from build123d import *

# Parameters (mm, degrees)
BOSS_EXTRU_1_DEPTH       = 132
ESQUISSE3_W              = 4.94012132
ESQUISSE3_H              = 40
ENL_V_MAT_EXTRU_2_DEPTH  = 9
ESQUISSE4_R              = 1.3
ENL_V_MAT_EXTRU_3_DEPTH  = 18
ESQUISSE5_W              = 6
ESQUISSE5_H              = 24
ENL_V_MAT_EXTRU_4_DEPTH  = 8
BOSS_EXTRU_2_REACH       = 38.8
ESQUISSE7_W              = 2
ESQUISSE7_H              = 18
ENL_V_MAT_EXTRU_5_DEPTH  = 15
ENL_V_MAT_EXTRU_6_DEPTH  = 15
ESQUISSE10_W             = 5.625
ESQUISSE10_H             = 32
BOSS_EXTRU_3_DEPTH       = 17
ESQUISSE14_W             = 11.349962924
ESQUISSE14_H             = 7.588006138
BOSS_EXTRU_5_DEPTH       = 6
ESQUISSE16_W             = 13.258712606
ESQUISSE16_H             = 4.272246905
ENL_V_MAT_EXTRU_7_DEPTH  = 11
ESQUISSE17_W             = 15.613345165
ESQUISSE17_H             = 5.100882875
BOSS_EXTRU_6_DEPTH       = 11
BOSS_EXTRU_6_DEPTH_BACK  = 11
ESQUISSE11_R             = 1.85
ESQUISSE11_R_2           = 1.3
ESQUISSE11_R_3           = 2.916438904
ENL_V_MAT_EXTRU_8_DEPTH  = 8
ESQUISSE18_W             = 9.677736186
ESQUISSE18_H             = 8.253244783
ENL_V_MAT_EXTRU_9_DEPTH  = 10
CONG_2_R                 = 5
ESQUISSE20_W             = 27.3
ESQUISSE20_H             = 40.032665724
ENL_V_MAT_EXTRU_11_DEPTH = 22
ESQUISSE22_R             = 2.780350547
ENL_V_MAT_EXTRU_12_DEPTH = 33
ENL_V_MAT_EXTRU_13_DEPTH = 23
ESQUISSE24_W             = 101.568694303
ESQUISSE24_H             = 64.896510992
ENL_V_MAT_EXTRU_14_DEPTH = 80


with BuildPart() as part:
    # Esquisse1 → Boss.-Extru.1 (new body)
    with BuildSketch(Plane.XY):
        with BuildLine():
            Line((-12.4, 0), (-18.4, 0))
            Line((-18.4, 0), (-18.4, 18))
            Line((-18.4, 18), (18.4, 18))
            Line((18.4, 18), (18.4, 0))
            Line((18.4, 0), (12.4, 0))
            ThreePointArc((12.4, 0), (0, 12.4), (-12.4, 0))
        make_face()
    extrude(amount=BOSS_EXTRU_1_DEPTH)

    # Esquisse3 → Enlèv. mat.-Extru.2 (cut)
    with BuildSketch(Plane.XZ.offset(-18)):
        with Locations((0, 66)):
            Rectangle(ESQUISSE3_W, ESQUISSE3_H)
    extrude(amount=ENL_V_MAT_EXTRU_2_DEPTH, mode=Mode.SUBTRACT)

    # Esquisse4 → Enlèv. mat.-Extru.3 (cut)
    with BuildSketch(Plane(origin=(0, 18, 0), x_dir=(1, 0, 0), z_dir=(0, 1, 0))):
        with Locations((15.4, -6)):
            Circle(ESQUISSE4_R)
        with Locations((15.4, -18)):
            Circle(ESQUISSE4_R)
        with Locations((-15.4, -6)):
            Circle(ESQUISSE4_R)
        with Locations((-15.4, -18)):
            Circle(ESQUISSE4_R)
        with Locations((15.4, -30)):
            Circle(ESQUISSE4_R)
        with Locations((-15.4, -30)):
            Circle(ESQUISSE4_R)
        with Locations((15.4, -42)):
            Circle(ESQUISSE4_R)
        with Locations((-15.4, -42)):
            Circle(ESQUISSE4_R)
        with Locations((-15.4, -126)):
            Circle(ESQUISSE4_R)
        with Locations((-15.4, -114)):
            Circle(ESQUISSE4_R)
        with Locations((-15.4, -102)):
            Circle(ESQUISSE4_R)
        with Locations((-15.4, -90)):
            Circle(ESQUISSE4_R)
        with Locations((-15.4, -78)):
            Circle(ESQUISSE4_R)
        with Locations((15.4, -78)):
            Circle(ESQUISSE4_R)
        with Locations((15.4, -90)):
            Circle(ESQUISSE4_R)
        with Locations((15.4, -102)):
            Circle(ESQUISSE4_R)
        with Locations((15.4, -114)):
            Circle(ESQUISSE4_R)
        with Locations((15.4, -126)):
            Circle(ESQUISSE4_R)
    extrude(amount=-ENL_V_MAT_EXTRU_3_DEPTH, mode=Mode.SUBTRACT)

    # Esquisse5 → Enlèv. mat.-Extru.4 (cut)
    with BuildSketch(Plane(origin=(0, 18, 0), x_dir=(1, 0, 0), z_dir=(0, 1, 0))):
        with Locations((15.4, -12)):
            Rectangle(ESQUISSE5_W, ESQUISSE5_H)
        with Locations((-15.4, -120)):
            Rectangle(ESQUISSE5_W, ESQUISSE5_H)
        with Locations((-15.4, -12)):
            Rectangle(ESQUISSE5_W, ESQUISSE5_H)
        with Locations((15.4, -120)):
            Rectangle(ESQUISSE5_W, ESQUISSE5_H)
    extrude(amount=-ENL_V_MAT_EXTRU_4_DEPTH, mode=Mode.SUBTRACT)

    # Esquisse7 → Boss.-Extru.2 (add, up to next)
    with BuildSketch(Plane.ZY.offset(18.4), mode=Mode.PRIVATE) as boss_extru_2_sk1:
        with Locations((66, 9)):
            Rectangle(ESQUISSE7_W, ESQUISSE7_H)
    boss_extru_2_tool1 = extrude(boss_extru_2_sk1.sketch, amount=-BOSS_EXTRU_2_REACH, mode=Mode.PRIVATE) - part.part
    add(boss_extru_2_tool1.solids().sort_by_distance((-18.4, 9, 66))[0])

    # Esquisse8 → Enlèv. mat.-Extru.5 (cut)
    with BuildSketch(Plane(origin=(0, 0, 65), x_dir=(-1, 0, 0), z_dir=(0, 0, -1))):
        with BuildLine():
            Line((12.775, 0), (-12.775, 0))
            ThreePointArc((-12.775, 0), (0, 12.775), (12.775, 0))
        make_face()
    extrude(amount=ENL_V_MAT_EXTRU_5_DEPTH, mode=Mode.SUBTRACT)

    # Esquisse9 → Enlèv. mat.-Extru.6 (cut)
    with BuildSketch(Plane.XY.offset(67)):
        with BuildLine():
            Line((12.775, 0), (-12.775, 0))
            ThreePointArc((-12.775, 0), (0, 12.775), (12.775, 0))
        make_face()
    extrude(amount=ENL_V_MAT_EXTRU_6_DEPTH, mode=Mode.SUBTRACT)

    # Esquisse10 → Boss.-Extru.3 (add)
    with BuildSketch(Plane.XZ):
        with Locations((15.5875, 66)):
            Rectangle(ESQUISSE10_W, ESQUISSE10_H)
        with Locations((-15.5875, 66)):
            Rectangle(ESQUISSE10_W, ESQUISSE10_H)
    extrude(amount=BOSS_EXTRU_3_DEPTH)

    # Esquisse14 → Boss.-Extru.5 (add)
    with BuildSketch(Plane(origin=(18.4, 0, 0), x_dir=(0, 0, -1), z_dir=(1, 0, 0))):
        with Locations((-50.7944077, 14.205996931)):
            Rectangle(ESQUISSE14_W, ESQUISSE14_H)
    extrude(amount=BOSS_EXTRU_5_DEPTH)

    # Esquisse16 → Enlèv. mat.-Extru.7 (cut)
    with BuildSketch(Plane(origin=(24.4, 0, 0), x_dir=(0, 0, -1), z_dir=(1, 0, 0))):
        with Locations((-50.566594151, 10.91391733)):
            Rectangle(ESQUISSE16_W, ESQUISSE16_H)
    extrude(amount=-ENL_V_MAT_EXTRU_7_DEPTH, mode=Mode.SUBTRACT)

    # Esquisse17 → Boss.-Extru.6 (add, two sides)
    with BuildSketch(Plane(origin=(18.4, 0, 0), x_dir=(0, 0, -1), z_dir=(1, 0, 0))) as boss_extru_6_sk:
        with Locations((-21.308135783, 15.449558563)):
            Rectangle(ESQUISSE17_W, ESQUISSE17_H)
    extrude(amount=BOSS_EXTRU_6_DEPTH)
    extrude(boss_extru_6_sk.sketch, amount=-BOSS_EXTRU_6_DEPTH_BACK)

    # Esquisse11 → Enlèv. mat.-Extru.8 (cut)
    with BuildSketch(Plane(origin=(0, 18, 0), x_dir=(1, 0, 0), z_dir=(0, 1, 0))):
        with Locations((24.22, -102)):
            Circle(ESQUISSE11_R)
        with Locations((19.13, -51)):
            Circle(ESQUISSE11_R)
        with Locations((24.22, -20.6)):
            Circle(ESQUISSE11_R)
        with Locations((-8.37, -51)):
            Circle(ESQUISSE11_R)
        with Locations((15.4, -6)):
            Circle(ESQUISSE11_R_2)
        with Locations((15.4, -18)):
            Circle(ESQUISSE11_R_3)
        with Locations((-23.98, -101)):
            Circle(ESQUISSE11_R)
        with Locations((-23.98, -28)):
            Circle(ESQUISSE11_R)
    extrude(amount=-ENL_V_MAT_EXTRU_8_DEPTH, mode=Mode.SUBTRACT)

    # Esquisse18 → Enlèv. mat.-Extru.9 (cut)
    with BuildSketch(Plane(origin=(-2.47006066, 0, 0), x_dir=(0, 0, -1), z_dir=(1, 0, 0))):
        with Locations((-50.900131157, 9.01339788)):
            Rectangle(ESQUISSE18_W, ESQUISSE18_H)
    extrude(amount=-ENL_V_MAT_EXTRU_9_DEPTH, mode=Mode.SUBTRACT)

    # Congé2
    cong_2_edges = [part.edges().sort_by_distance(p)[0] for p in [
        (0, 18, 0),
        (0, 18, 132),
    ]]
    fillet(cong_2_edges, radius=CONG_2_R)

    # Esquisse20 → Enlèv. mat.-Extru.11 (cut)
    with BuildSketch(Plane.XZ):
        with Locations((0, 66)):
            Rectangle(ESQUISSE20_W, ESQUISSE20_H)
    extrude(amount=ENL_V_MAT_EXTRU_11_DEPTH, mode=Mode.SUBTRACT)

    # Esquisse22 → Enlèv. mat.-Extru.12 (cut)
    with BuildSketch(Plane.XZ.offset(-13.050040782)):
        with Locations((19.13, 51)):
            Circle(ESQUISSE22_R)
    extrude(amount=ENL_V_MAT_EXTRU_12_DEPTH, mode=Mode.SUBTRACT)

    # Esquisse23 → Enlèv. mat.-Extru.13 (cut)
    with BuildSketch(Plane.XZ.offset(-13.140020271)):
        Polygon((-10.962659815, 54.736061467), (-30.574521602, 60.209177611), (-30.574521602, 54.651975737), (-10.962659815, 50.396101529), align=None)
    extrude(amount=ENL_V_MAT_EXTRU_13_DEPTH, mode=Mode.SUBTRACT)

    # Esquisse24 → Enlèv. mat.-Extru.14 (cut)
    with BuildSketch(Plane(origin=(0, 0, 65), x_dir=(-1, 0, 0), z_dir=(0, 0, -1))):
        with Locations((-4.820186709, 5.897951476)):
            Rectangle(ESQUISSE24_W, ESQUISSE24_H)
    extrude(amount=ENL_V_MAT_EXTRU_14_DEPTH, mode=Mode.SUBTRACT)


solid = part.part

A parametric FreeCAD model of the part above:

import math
import FreeCAD as App
import Part
import Sketcher

V = App.Vector


def edges_at(feature, points):
    """Names of the edges that pass closest to the given points."""
    edges = feature.Shape.Edges
    near = lambda p: min(range(len(edges)), key=lambda i: edges[i].distToShape(Part.Vertex(*p))[0])
    return sorted({f"Edge{near(p) + 1}" for p in points})


def add_polygon(sketch, points):
    """Adds a closed chain of lines whose ends are joined by coincident constraints."""
    first, n = sketch.GeometryCount, len(points)
    for a, b in zip(points, points[1:] + points[:1]):
        sketch.addGeometry(Part.LineSegment(App.Vector(*a, 0), App.Vector(*b, 0)), False)
    for i in range(n):
        sketch.addConstraint(Sketcher.Constraint("Coincident", first + i, 2, first + (i + 1) % n, 1))

doc = App.newDocument("Part")
body = doc.addObject("PartDesign::Body", "Body")

# Sketch on XY plane
sketch1 = doc.addObject("Sketcher::SketchObject", "Sketch")
body.addObject(sketch1)
sketch1.AttachmentSupport = (doc.XY_Plane, [""])
sketch1.MapMode = "FlatFace"
sketch1.addGeometry(Part.LineSegment(V(-18.4, 0, 0), V(-12.4, 0, 0)), False)
sketch1.addGeometry(Part.ArcOfCircle(Part.Circle(V(0, 0, 0), V(0, 0, 1), 12.4), math.radians(0), math.radians(180)), False)
sketch1.addGeometry(Part.LineSegment(V(12.4, 0, 0), V(18.4, 0, 0)), False)
sketch1.addGeometry(Part.LineSegment(V(18.4, 0, 0), V(18.4, 18, 0)), False)
sketch1.addGeometry(Part.LineSegment(V(18.4, 18, 0), V(-18.4, 18, 0)), False)
sketch1.addGeometry(Part.LineSegment(V(-18.4, 18, 0), V(-18.4, 0, 0)), False)
sketch1.addConstraint(Sketcher.Constraint("Coincident", 0, 2, 1, 2))
sketch1.addConstraint(Sketcher.Constraint("Coincident", 1, 1, 2, 1))
sketch1.addConstraint(Sketcher.Constraint("Coincident", 2, 2, 3, 1))
sketch1.addConstraint(Sketcher.Constraint("Coincident", 3, 2, 4, 1))
sketch1.addConstraint(Sketcher.Constraint("Coincident", 4, 2, 5, 1))
sketch1.addConstraint(Sketcher.Constraint("Coincident", 5, 2, 0, 1))
sketch1.addConstraint(Sketcher.Constraint("Horizontal", 0))
sketch1.addConstraint(Sketcher.Constraint("Horizontal", 2))
sketch1.addConstraint(Sketcher.Constraint("Vertical", 3))
sketch1.addConstraint(Sketcher.Constraint("Horizontal", 4))
sketch1.addConstraint(Sketcher.Constraint("Vertical", 5))
sketch1.addConstraint(Sketcher.Constraint("Coincident", 1, 3, -1, 1))
sketch1.addConstraint(Sketcher.Constraint("Symmetric", 2, 2, 5, 2, -1, 1))
sketch1.addConstraint(Sketcher.Constraint("PointOnObject", 0, 2, -1))
sketch1.addConstraint(Sketcher.Constraint("Radius", 1, 12.4))
sketch1.addConstraint(Sketcher.Constraint("DistanceX", 0, 1, 0, 2, 6.0))
sketch1.addConstraint(Sketcher.Constraint("DistanceY", 3, 1, 3, 2, 18.0))
pad1 = doc.addObject("PartDesign::Pad", "Pad")
body.addObject(pad1)
pad1.Profile = sketch1
pad1.Length = 132

# Sketch on XZ plane
sketch2 = doc.addObject("Sketcher::SketchObject", "Sketch001")
body.addObject(sketch2)
sketch2.AttachmentSupport = (doc.XZ_Plane, [""])
sketch2.MapMode = "FlatFace"
sketch2.AttachmentOffset = App.Placement(V(0, 0, -18), App.Rotation())
add_polygon(sketch2, [(-2.470061, 86), (-2.470061, 46), (2.470061, 46), (2.470061, 86)])  # lines 0-3
sketch2.addConstraint(Sketcher.Constraint("Vertical", 0))
sketch2.addConstraint(Sketcher.Constraint("Horizontal", 1))
sketch2.addConstraint(Sketcher.Constraint("Vertical", 2))
sketch2.addConstraint(Sketcher.Constraint("Horizontal", 3))
sketch2.addConstraint(Sketcher.Constraint("DistanceY", 0, 2, 0, 1, 40.0))
sketch2.addConstraint(Sketcher.Constraint("DistanceY", -1, 1, 0, 2, 46.0))
sketch2.addConstraint(Sketcher.Constraint("DistanceX", 1, 1, 1, 2, 4.940121))
sketch2.addConstraint(Sketcher.Constraint("DistanceX", 0, 2, -1, 1, 2.470061))
pocket1 = doc.addObject("PartDesign::Pocket", "Pocket")
body.addObject(pocket1)
pocket1.Profile = sketch2
pocket1.Length = 9
pocket1.Reversed = True

# Sketch on XZ plane
sketch3 = doc.addObject("Sketcher::SketchObject", "Sketch002")
body.addObject(sketch3)
sketch3.AttachmentSupport = (doc.XZ_Plane, [""])
sketch3.MapMode = "FlatFace"
sketch3.AttachmentOffset = App.Placement(V(0, 0, -18), App.Rotation())
sketch3.addGeometry(Part.Circle(V(15.4, 6, 0), V(0, 0, 1), 1.3), False)
sketch3.addGeometry(Part.Circle(V(15.4, 18, 0), V(0, 0, 1), 1.3), False)
sketch3.addGeometry(Part.Circle(V(-15.4, 6, 0), V(0, 0, 1), 1.3), False)
sketch3.addGeometry(Part.Circle(V(-15.4, 18, 0), V(0, 0, 1), 1.3), False)
sketch3.addGeometry(Part.Circle(V(15.4, 30, 0), V(0, 0, 1), 1.3), False)
sketch3.addGeometry(Part.Circle(V(-15.4, 30, 0), V(0, 0, 1), 1.3), False)
sketch3.addGeometry(Part.Circle(V(15.4, 42, 0), V(0, 0, 1), 1.3), False)
sketch3.addGeometry(Part.Circle(V(-15.4, 42, 0), V(0, 0, 1), 1.3), False)
sketch3.addGeometry(Part.Circle(V(-15.4, 126, 0), V(0, 0, 1), 1.3), False)
sketch3.addGeometry(Part.Circle(V(-15.4, 114, 0), V(0, 0, 1), 1.3), False)
sketch3.addGeometry(Part.Circle(V(-15.4, 102, 0), V(0, 0, 1), 1.3), False)
sketch3.addGeometry(Part.Circle(V(-15.4, 90, 0), V(0, 0, 1), 1.3), False)
sketch3.addGeometry(Part.Circle(V(-15.4, 78, 0), V(0, 0, 1), 1.3), False)
sketch3.addGeometry(Part.Circle(V(15.4, 78, 0), V(0, 0, 1), 1.3), False)
sketch3.addGeometry(Part.Circle(V(15.4, 90, 0), V(0, 0, 1), 1.3), False)
sketch3.addGeometry(Part.Circle(V(15.4, 102, 0), V(0, 0, 1), 1.3), False)
sketch3.addGeometry(Part.Circle(V(15.4, 114, 0), V(0, 0, 1), 1.3), False)
sketch3.addGeometry(Part.Circle(V(15.4, 126, 0), V(0, 0, 1), 1.3), False)
sketch3.addConstraint(Sketcher.Constraint("Equal", 0, 1))
sketch3.addConstraint(Sketcher.Constraint("Equal", 1, 2))
sketch3.addConstraint(Sketcher.Constraint("Equal", 2, 3))
sketch3.addConstraint(Sketcher.Constraint("Equal", 3, 4))
sketch3.addConstraint(Sketcher.Constraint("Equal", 4, 5))
sketch3.addConstraint(Sketcher.Constraint("Equal", 5, 6))
sketch3.addConstraint(Sketcher.Constraint("Equal", 6, 7))
sketch3.addConstraint(Sketcher.Constraint("Equal", 7, 8))
sketch3.addConstraint(Sketcher.Constraint("Equal", 8, 9))
sketch3.addConstraint(Sketcher.Constraint("Equal", 9, 10))
sketch3.addConstraint(Sketcher.Constraint("Equal", 10, 11))
sketch3.addConstraint(Sketcher.Constraint("Equal", 11, 12))
sketch3.addConstraint(Sketcher.Constraint("Equal", 12, 13))
sketch3.addConstraint(Sketcher.Constraint("Equal", 13, 14))
sketch3.addConstraint(Sketcher.Constraint("Equal", 14, 15))
sketch3.addConstraint(Sketcher.Constraint("Equal", 15, 16))
sketch3.addConstraint(Sketcher.Constraint("Equal", 16, 17))
sketch3.addConstraint(Sketcher.Constraint("Symmetric", 0, 3, 2, 3, -2))
sketch3.addConstraint(Sketcher.Constraint("Symmetric", 1, 3, 3, 3, -2))
sketch3.addConstraint(Sketcher.Constraint("Symmetric", 4, 3, 5, 3, -2))
sketch3.addConstraint(Sketcher.Constraint("Symmetric", 6, 3, 7, 3, -2))
sketch3.addConstraint(Sketcher.Constraint("Symmetric", 12, 3, 13, 3, -2))
sketch3.addConstraint(Sketcher.Constraint("Symmetric", 11, 3, 14, 3, -2))
sketch3.addConstraint(Sketcher.Constraint("Symmetric", 10, 3, 15, 3, -2))
sketch3.addConstraint(Sketcher.Constraint("Symmetric", 9, 3, 16, 3, -2))
sketch3.addConstraint(Sketcher.Constraint("Symmetric", 8, 3, 17, 3, -2))
sketch3.addConstraint(Sketcher.Constraint("Vertical", 0, 3, 1, 3))
sketch3.addConstraint(Sketcher.Constraint("Vertical", 1, 3, 4, 3))
sketch3.addConstraint(Sketcher.Constraint("Vertical", 4, 3, 6, 3))
sketch3.addConstraint(Sketcher.Constraint("Vertical", 7, 3, 8, 3))
sketch3.addConstraint(Sketcher.Constraint("Vertical", 8, 3, 9, 3))
sketch3.addConstraint(Sketcher.Constraint("Vertical", 9, 3, 10, 3))
sketch3.addConstraint(Sketcher.Constraint("Vertical", 10, 3, 11, 3))
sketch3.addConstraint(Sketcher.Constraint("Vertical", 11, 3, 12, 3))
sketch3.addConstraint(Sketcher.Constraint("Diameter", 0, 2.6))
sketch3.addConstraint(Sketcher.Constraint("DistanceY", -1, 1, 0, 3, 6.0))
sketch3.addConstraint(Sketcher.Constraint("DistanceY", -1, 1, 1, 3, 18.0))
sketch3.addConstraint(Sketcher.Constraint("DistanceY", -1, 1, 4, 3, 30.0))
sketch3.addConstraint(Sketcher.Constraint("DistanceY", -1, 1, 6, 3, 42.0))
sketch3.addConstraint(Sketcher.Constraint("DistanceY", -1, 1, 8, 3, 126.0))
sketch3.addConstraint(Sketcher.Constraint("DistanceY", -1, 1, 9, 3, 114.0))
sketch3.addConstraint(Sketcher.Constraint("DistanceY", -1, 1, 10, 3, 102.0))
sketch3.addConstraint(Sketcher.Constraint("DistanceY", -1, 1, 11, 3, 90.0))
sketch3.addConstraint(Sketcher.Constraint("DistanceY", -1, 1, 12, 3, 78.0))
sketch3.addConstraint(Sketcher.Constraint("DistanceX", -1, 1, 0, 3, 15.4))
pocket2 = doc.addObject("PartDesign::Pocket", "Pocket001")
body.addObject(pocket2)
pocket2.Profile = sketch3
pocket2.Length = 18
pocket2.Reversed = True

# Sketch on XZ plane
sketch4 = doc.addObject("Sketcher::SketchObject", "Sketch003")
body.addObject(sketch4)
sketch4.AttachmentSupport = (doc.XZ_Plane, [""])
sketch4.MapMode = "FlatFace"
sketch4.AttachmentOffset = App.Placement(V(0, 0, -18), App.Rotation())
add_polygon(sketch4, [(12.4, 0), (12.4, 24), (18.4, 24), (18.4, 0)])  # lines 0-3
add_polygon(sketch4, [(-18.4, 108), (-18.4, 132), (-12.4, 132), (-12.4, 108)])  # lines 4-7
add_polygon(sketch4, [(-18.4, 0), (-18.4, 24), (-12.4, 24), (-12.4, 0)])  # lines 8-11
add_polygon(sketch4, [(12.4, 108), (12.4, 132), (18.4, 132), (18.4, 108)])  # lines 12-15
sketch4.addConstraint(Sketcher.Constraint("Vertical", 0))
sketch4.addConstraint(Sketcher.Constraint("Horizontal", 1))
sketch4.addConstraint(Sketcher.Constraint("Vertical", 2))
sketch4.addConstraint(Sketcher.Constraint("Horizontal", 3))
sketch4.addConstraint(Sketcher.Constraint("Vertical", 4))
sketch4.addConstraint(Sketcher.Constraint("Horizontal", 5))
sketch4.addConstraint(Sketcher.Constraint("Vertical", 6))
sketch4.addConstraint(Sketcher.Constraint("Horizontal", 7))
sketch4.addConstraint(Sketcher.Constraint("Vertical", 8))
sketch4.addConstraint(Sketcher.Constraint("Horizontal", 9))
sketch4.addConstraint(Sketcher.Constraint("Vertical", 10))
sketch4.addConstraint(Sketcher.Constraint("Horizontal", 11))
sketch4.addConstraint(Sketcher.Constraint("Vertical", 12))
sketch4.addConstraint(Sketcher.Constraint("Horizontal", 13))
sketch4.addConstraint(Sketcher.Constraint("Vertical", 14))
sketch4.addConstraint(Sketcher.Constraint("Horizontal", 15))
sketch4.addConstraint(Sketcher.Constraint("Symmetric", 3, 2, 10, 2, -1, 1))
sketch4.addConstraint(Sketcher.Constraint("Symmetric", 1, 2, 8, 2, -2))
sketch4.addConstraint(Sketcher.Constraint("Symmetric", 5, 2, 12, 2, -2))
sketch4.addConstraint(Sketcher.Constraint("Symmetric", 7, 2, 14, 2, -2))
sketch4.addConstraint(Sketcher.Constraint("PointOnObject", 2, 2, -1))
sketch4.addConstraint(Sketcher.Constraint("Vertical", 7, 2, 8, 2))
sketch4.addConstraint(Sketcher.Constraint("Vertical", 6, 2, 9, 2))
sketch4.addConstraint(Sketcher.Constraint("Equal", 2, 4))
sketch4.addConstraint(Sketcher.Constraint("DistanceX", 1, 1, 1, 2, 6.0))
sketch4.addConstraint(Sketcher.Constraint("DistanceY", 0, 1, 0, 2, 24.0))
sketch4.addConstraint(Sketcher.Constraint("DistanceY", -1, 1, 4, 2, 132.0))
sketch4.addConstraint(Sketcher.Constraint("DistanceX", -1, 1, 0, 2, 12.4))
pocket3 = doc.addObject("PartDesign::Pocket", "Pocket002")
body.addObject(pocket3)
pocket3.Profile = sketch4
pocket3.Length = 8
pocket3.Reversed = True

# Sketch on YZ plane
sketch5 = doc.addObject("Sketcher::SketchObject", "Sketch004")
body.addObject(sketch5)
sketch5.AttachmentSupport = (doc.YZ_Plane, [""])
sketch5.MapMode = "FlatFace"
sketch5.AttachmentOffset = App.Placement(V(0, 0, -18.4), App.Rotation())
add_polygon(sketch5, [(18, 65), (0, 65), (0, 67), (18, 67)])  # lines 0-3
sketch5.addConstraint(Sketcher.Constraint("Horizontal", 0))
sketch5.addConstraint(Sketcher.Constraint("Vertical", 1))
sketch5.addConstraint(Sketcher.Constraint("Horizontal", 2))
sketch5.addConstraint(Sketcher.Constraint("Vertical", 3))
sketch5.addConstraint(Sketcher.Constraint("PointOnObject", 0, 2, -2))
sketch5.addConstraint(Sketcher.Constraint("DistanceX", 0, 2, 0, 1, 18.0))
sketch5.addConstraint(Sketcher.Constraint("DistanceY", 1, 1, 1, 2, 2.0))
sketch5.addConstraint(Sketcher.Constraint("DistanceY", -1, 1, 0, 2, 65.0))
pad2 = doc.addObject("PartDesign::Pad", "Pad001")
body.addObject(pad2)
pad2.Profile = sketch5
pad2.Type = "UpToFirst"

# Sketch on XY plane
sketch6 = doc.addObject("Sketcher::SketchObject", "Sketch005")
body.addObject(sketch6)
sketch6.AttachmentSupport = (doc.XY_Plane, [""])
sketch6.MapMode = "FlatFace"
sketch6.AttachmentOffset = App.Placement(V(0, 0, 65), App.Rotation())
sketch6.addGeometry(Part.LineSegment(V(12.775, 0, 0), V(-12.775, 0, 0)), False)
sketch6.addGeometry(Part.ArcOfCircle(Part.Circle(V(0, 0, 0), V(0, 0, 1), 12.775), math.radians(0), math.radians(180)), False)
sketch6.addConstraint(Sketcher.Constraint("Coincident", 0, 1, 1, 1))
sketch6.addConstraint(Sketcher.Constraint("Coincident", 1, 2, 0, 2))
sketch6.addConstraint(Sketcher.Constraint("Horizontal", 0))
sketch6.addConstraint(Sketcher.Constraint("Coincident", 1, 3, -1, 1))
sketch6.addConstraint(Sketcher.Constraint("PointOnObject", 0, 1, -1))
sketch6.addConstraint(Sketcher.Constraint("Radius", 1, 12.775))
pocket4 = doc.addObject("PartDesign::Pocket", "Pocket003")
body.addObject(pocket4)
pocket4.Profile = sketch6
pocket4.Length = 15

# Sketch on XY plane
sketch7 = doc.addObject("Sketcher::SketchObject", "Sketch006")
body.addObject(sketch7)
sketch7.AttachmentSupport = (doc.XY_Plane, [""])
sketch7.MapMode = "FlatFace"
sketch7.AttachmentOffset = App.Placement(V(0, 0, 67), App.Rotation())
sketch7.addGeometry(Part.LineSegment(V(-12.775, 0, 0), V(12.775, 0, 0)), False)
sketch7.addGeometry(Part.ArcOfCircle(Part.Circle(V(0, 0, 0), V(0, 0, 1), 12.775), math.radians(0), math.radians(180)), False)
sketch7.addConstraint(Sketcher.Constraint("Coincident", 0, 1, 1, 2))
sketch7.addConstraint(Sketcher.Constraint("Coincident", 1, 1, 0, 2))
sketch7.addConstraint(Sketcher.Constraint("Horizontal", 0))
sketch7.addConstraint(Sketcher.Constraint("Coincident", 1, 3, -1, 1))
sketch7.addConstraint(Sketcher.Constraint("PointOnObject", 0, 1, -1))
sketch7.addConstraint(Sketcher.Constraint("Radius", 1, 12.775))
pocket5 = doc.addObject("PartDesign::Pocket", "Pocket004")
body.addObject(pocket5)
pocket5.Profile = sketch7
pocket5.Length = 15
pocket5.Reversed = True

# Sketch on XZ plane
sketch8 = doc.addObject("Sketcher::SketchObject", "Sketch007")
body.addObject(sketch8)
sketch8.AttachmentSupport = (doc.XZ_Plane, [""])
sketch8.MapMode = "FlatFace"
add_polygon(sketch8, [(12.775, 82), (12.775, 50), (18.4, 50), (18.4, 82)])  # lines 0-3
add_polygon(sketch8, [(-18.4, 82), (-18.4, 50), (-12.775, 50), (-12.775, 82)])  # lines 4-7
sketch8.addConstraint(Sketcher.Constraint("Vertical", 0))
sketch8.addConstraint(Sketcher.Constraint("Horizontal", 1))
sketch8.addConstraint(Sketcher.Constraint("Vertical", 2))
sketch8.addConstraint(Sketcher.Constraint("Horizontal", 3))
sketch8.addConstraint(Sketcher.Constraint("Vertical", 4))
sketch8.addConstraint(Sketcher.Constraint("Horizontal", 5))
sketch8.addConstraint(Sketcher.Constraint("Vertical", 6))
sketch8.addConstraint(Sketcher.Constraint("Horizontal", 7))
sketch8.addConstraint(Sketcher.Constraint("Symmetric", 1, 2, 4, 2, -2))
sketch8.addConstraint(Sketcher.Constraint("Symmetric", 3, 2, 6, 2, -2))
sketch8.addConstraint(Sketcher.Constraint("DistanceY", 0, 2, 0, 1, 32.0))
sketch8.addConstraint(Sketcher.Constraint("DistanceY", -1, 1, 0, 2, 50.0))
sketch8.addConstraint(Sketcher.Constraint("DistanceX", -1, 1, 1, 2, 18.4))
sketch8.addConstraint(Sketcher.Constraint("DistanceX", 1, 1, 1, 2, 5.625))
pad3 = doc.addObject("PartDesign::Pad", "Pad002")
body.addObject(pad3)
pad3.Profile = sketch8
pad3.Length = 17

# Sketch on YZ plane
sketch9 = doc.addObject("Sketcher::SketchObject", "Sketch008")
body.addObject(sketch9)
sketch9.AttachmentSupport = (doc.YZ_Plane, [""])
sketch9.MapMode = "FlatFace"
sketch9.AttachmentOffset = App.Placement(V(0, 0, 18.4), App.Rotation())
add_polygon(sketch9, [(18, 56.469389), (10.411994, 56.469389), (10.411994, 45.119426), (18, 45.119426)])  # lines 0-3
sketch9.addConstraint(Sketcher.Constraint("Horizontal", 0))
sketch9.addConstraint(Sketcher.Constraint("Vertical", 1))
sketch9.addConstraint(Sketcher.Constraint("Horizontal", 2))
sketch9.addConstraint(Sketcher.Constraint("Vertical", 3))
sketch9.addConstraint(Sketcher.Constraint("DistanceX", -1, 1, 2, 2, 18.0))
sketch9.addConstraint(Sketcher.Constraint("DistanceX", 0, 2, 0, 1, 7.588006))
sketch9.addConstraint(Sketcher.Constraint("DistanceY", 1, 2, 1, 1, 11.349963))
sketch9.addConstraint(Sketcher.Constraint("DistanceY", -1, 1, 0, 2, 56.469389))
pad4 = doc.addObject("PartDesign::Pad", "Pad003")
body.addObject(pad4)
pad4.Profile = sketch9
pad4.Length = 6

# Sketch on YZ plane
sketch10 = doc.addObject("Sketcher::SketchObject", "Sketch009")
body.addObject(sketch10)
sketch10.AttachmentSupport = (doc.YZ_Plane, [""])
sketch10.MapMode = "FlatFace"
sketch10.AttachmentOffset = App.Placement(V(0, 0, 24.4), App.Rotation())
add_polygon(sketch10, [(13.050041, 57.19595), (8.777794, 57.19595), (8.777794, 43.937238), (13.050041, 43.937238)])  # lines 0-3
sketch10.addConstraint(Sketcher.Constraint("Horizontal", 0))
sketch10.addConstraint(Sketcher.Constraint("Vertical", 1))
sketch10.addConstraint(Sketcher.Constraint("Horizontal", 2))
sketch10.addConstraint(Sketcher.Constraint("Vertical", 3))
sketch10.addConstraint(Sketcher.Constraint("DistanceX", 0, 2, 0, 1, 4.272247))
sketch10.addConstraint(Sketcher.Constraint("DistanceY", 1, 2, 1, 1, 13.258713))
sketch10.addConstraint(Sketcher.Constraint("DistanceY", -1, 1, 0, 2, 57.19595))
sketch10.addConstraint(Sketcher.Constraint("DistanceX", -1, 1, 2, 2, 13.050041))
pocket6 = doc.addObject("PartDesign::Pocket", "Pocket005")
body.addObject(pocket6)
pocket6.Profile = sketch10
pocket6.Length = 11

# Sketch on YZ plane
sketch11 = doc.addObject("Sketcher::SketchObject", "Sketch010")
body.addObject(sketch11)
sketch11.AttachmentSupport = (doc.YZ_Plane, [""])
sketch11.MapMode = "FlatFace"
sketch11.AttachmentOffset = App.Placement(V(0, 0, 18.4), App.Rotation())
add_polygon(sketch11, [(18, 29.114808), (12.899117, 29.114808), (12.899117, 13.501463), (18, 13.501463)])  # lines 0-3
sketch11.addConstraint(Sketcher.Constraint("Horizontal", 0))
sketch11.addConstraint(Sketcher.Constraint("Vertical", 1))
sketch11.addConstraint(Sketcher.Constraint("Horizontal", 2))
sketch11.addConstraint(Sketcher.Constraint("Vertical", 3))
sketch11.addConstraint(Sketcher.Constraint("DistanceX", -1, 1, 2, 2, 18.0))
sketch11.addConstraint(Sketcher.Constraint("DistanceX", 0, 2, 0, 1, 5.100883))
sketch11.addConstraint(Sketcher.Constraint("DistanceY", 1, 2, 1, 1, 15.613345))
sketch11.addConstraint(Sketcher.Constraint("DistanceY", -1, 1, 0, 2, 29.114808))
pad5 = doc.addObject("PartDesign::Pad", "Pad004")
body.addObject(pad5)
pad5.Profile = sketch11
pad5.Type = "TwoLengths"
pad5.Length = 11
pad5.Length2 = 11

# Sketch on XZ plane
sketch12 = doc.addObject("Sketcher::SketchObject", "Sketch011")
body.addObject(sketch12)
sketch12.AttachmentSupport = (doc.XZ_Plane, [""])
sketch12.MapMode = "FlatFace"
sketch12.AttachmentOffset = App.Placement(V(0, 0, -18), App.Rotation())
sketch12.addGeometry(Part.Circle(V(24.22, 102, 0), V(0, 0, 1), 1.85), False)
sketch12.addGeometry(Part.Circle(V(19.13, 51, 0), V(0, 0, 1), 1.85), False)
sketch12.addGeometry(Part.Circle(V(24.22, 20.6, 0), V(0, 0, 1), 1.85), False)
sketch12.addGeometry(Part.Circle(V(-8.37, 51, 0), V(0, 0, 1), 1.85), False)
sketch12.addGeometry(Part.Circle(V(15.4, 6, 0), V(0, 0, 1), 1.3), False)
sketch12.addGeometry(Part.Circle(V(15.4, 18, 0), V(0, 0, 1), 2.916439), False)
sketch12.addGeometry(Part.Circle(V(-23.98, 101, 0), V(0, 0, 1), 1.85), False)
sketch12.addGeometry(Part.Circle(V(-23.98, 28, 0), V(0, 0, 1), 1.85), False)
sketch12.addConstraint(Sketcher.Constraint("Equal", 0, 1))
sketch12.addConstraint(Sketcher.Constraint("Equal", 1, 2))
sketch12.addConstraint(Sketcher.Constraint("Equal", 2, 3))
sketch12.addConstraint(Sketcher.Constraint("Equal", 3, 6))
sketch12.addConstraint(Sketcher.Constraint("Equal", 6, 7))
sketch12.addConstraint(Sketcher.Constraint("Horizontal", 1, 3, 3, 3))
sketch12.addConstraint(Sketcher.Constraint("Vertical", 0, 3, 2, 3))
sketch12.addConstraint(Sketcher.Constraint("Vertical", 4, 3, 5, 3))
sketch12.addConstraint(Sketcher.Constraint("Vertical", 6, 3, 7, 3))
sketch12.addConstraint(Sketcher.Constraint("Diameter", 0, 3.7))
sketch12.addConstraint(Sketcher.Constraint("Diameter", 4, 2.6))
sketch12.addConstraint(Sketcher.Constraint("DistanceY", -1, 1, 0, 3, 102.0))
sketch12.addConstraint(Sketcher.Constraint("DistanceY", -1, 1, 1, 3, 51.0))
sketch12.addConstraint(Sketcher.Constraint("DistanceY", -1, 1, 4, 3, 6.0))
sketch12.addConstraint(Sketcher.Constraint("DistanceY", -1, 1, 5, 3, 18.0))
sketch12.addConstraint(Sketcher.Constraint("DistanceY", -1, 1, 6, 3, 101.0))
sketch12.addConstraint(Sketcher.Constraint("DistanceY", -1, 1, 7, 3, 28.0))
sketch12.addConstraint(Sketcher.Constraint("DistanceY", -1, 1, 2, 3, 20.6))
sketch12.addConstraint(Sketcher.Constraint("DistanceX", -1, 1, 4, 3, 15.4))
sketch12.addConstraint(Sketcher.Constraint("DistanceX", 3, 3, 1, 3, 27.5))
sketch12.addConstraint(Sketcher.Constraint("DistanceX", 6, 3, 0, 3, 48.2))
sketch12.addConstraint(Sketcher.Constraint("DistanceX", -1, 1, 0, 3, 24.22))
sketch12.addConstraint(Sketcher.Constraint("DistanceX", -1, 1, 1, 3, 19.13))
sketch12.addConstraint(Sketcher.Constraint("Diameter", 5, 5.832878))
pocket7 = doc.addObject("PartDesign::Pocket", "Pocket006")
body.addObject(pocket7)
pocket7.Profile = sketch12
pocket7.Length = 8
pocket7.Reversed = True

# Sketch on YZ plane
sketch13 = doc.addObject("Sketcher::SketchObject", "Sketch012")
body.addObject(sketch13)
sketch13.AttachmentSupport = (doc.YZ_Plane, [""])
sketch13.MapMode = "FlatFace"
sketch13.AttachmentOffset = App.Placement(V(0, 0, -2.470061), App.Rotation())
add_polygon(sketch13, [(13.14002, 55.738999), (4.886775, 55.738999), (4.886775, 46.061263), (13.14002, 46.061263)])  # lines 0-3
sketch13.addConstraint(Sketcher.Constraint("Horizontal", 0))
sketch13.addConstraint(Sketcher.Constraint("Vertical", 1))
sketch13.addConstraint(Sketcher.Constraint("Horizontal", 2))
sketch13.addConstraint(Sketcher.Constraint("Vertical", 3))
sketch13.addConstraint(Sketcher.Constraint("DistanceY", -1, 1, 0, 2, 55.738999))
sketch13.addConstraint(Sketcher.Constraint("DistanceX", 0, 2, 0, 1, 8.253245))
sketch13.addConstraint(Sketcher.Constraint("DistanceY", 1, 2, 1, 1, 9.677736))
sketch13.addConstraint(Sketcher.Constraint("DistanceX", -1, 1, 2, 2, 13.14002))
pocket8 = doc.addObject("PartDesign::Pocket", "Pocket007")
body.addObject(pocket8)
pocket8.Profile = sketch13
pocket8.Length = 10
doc.recompute()

fillet = doc.addObject("PartDesign::Fillet", "Fillet")
body.addObject(fillet)
fillet.Base = (pocket8, edges_at(pocket8, [(0, 18, 0), (0, 18, 132)]))
fillet.Radius = 5

# Sketch on XZ plane
sketch14 = doc.addObject("Sketcher::SketchObject", "Sketch013")
body.addObject(sketch14)
sketch14.AttachmentSupport = (doc.XZ_Plane, [""])
sketch14.MapMode = "FlatFace"
add_polygon(sketch14, [(-13.65, 86.016333), (-13.65, 45.983667), (13.65, 45.983667), (13.65, 86.016333)])  # lines 0-3
sketch14.addConstraint(Sketcher.Constraint("Vertical", 0))
sketch14.addConstraint(Sketcher.Constraint("Horizontal", 1))
sketch14.addConstraint(Sketcher.Constraint("Vertical", 2))
sketch14.addConstraint(Sketcher.Constraint("Horizontal", 3))
sketch14.addConstraint(Sketcher.Constraint("DistanceX", 1, 1, 1, 2, 27.3))
sketch14.addConstraint(Sketcher.Constraint("DistanceX", 0, 2, -1, 1, 13.65))
sketch14.addConstraint(Sketcher.Constraint("DistanceY", 0, 2, 0, 1, 40.032666))
sketch14.addConstraint(Sketcher.Constraint("DistanceY", -1, 1, 0, 2, 45.983667))
pocket9 = doc.addObject("PartDesign::Pocket", "Pocket008")
body.addObject(pocket9)
pocket9.Profile = sketch14
pocket9.Length = 22
pocket9.Reversed = True

# Sketch on XZ plane
sketch15 = doc.addObject("Sketcher::SketchObject", "Sketch014")
body.addObject(sketch15)
sketch15.AttachmentSupport = (doc.XZ_Plane, [""])
sketch15.MapMode = "FlatFace"
sketch15.AttachmentOffset = App.Placement(V(0, 0, -13.050041), App.Rotation())
sketch15.addGeometry(Part.Circle(V(19.13, 51, 0), V(0, 0, 1), 2.780351), False)
sketch15.addConstraint(Sketcher.Constraint("DistanceY", -1, 1, 0, 3, 51.0))
sketch15.addConstraint(Sketcher.Constraint("Diameter", 0, 5.560701))
sketch15.addConstraint(Sketcher.Constraint("DistanceX", -1, 1, 0, 3, 19.13))
pocket10 = doc.addObject("PartDesign::Pocket", "Pocket009")
body.addObject(pocket10)
pocket10.Profile = sketch15
pocket10.Length = 33
pocket10.Reversed = True

# Sketch on XZ plane
sketch16 = doc.addObject("Sketcher::SketchObject", "Sketch015")
body.addObject(sketch16)
sketch16.AttachmentSupport = (doc.XZ_Plane, [""])
sketch16.MapMode = "FlatFace"
sketch16.AttachmentOffset = App.Placement(V(0, 0, -13.14002), App.Rotation())
add_polygon(sketch16, [(-10.96266, 54.736061), (-30.574522, 60.209178), (-30.574522, 54.651976), (-10.96266, 50.396102)])  # lines 0-3
sketch16.addConstraint(Sketcher.Constraint("Vertical", 1))
sketch16.addConstraint(Sketcher.Constraint("Vertical", 3))
sketch16.addConstraint(Sketcher.Constraint("DistanceY", 1, 2, 1, 1, 5.557202))
sketch16.addConstraint(Sketcher.Constraint("DistanceY", 3, 1, 3, 2, 4.33996))
sketch16.addConstraint(Sketcher.Constraint("DistanceY", -1, 1, 2, 2, 50.396102))
sketch16.addConstraint(Sketcher.Constraint("Distance", 0, 20.361241))
sketch16.addConstraint(Sketcher.Constraint("DistanceX", 0, 2, -1, 1, 30.574522))
sketch16.addConstraint(Sketcher.Constraint("DistanceX", 2, 2, -1, 1, 10.96266))
pocket11 = doc.addObject("PartDesign::Pocket", "Pocket010")
body.addObject(pocket11)
pocket11.Profile = sketch16
pocket11.Length = 23
pocket11.Reversed = True

# Sketch on XY plane
sketch17 = doc.addObject("Sketcher::SketchObject", "Sketch016")
body.addObject(sketch17)
sketch17.AttachmentSupport = (doc.XY_Plane, [""])
sketch17.MapMode = "FlatFace"
sketch17.AttachmentOffset = App.Placement(V(0, 0, 65), App.Rotation())
add_polygon(sketch17, [(55.604534, 38.346207), (55.604534, -26.550304), (-45.96416, -26.550304), (-45.96416, 38.346207)])  # lines 0-3
sketch17.addConstraint(Sketcher.Constraint("Vertical", 0))
sketch17.addConstraint(Sketcher.Constraint("Horizontal", 1))
sketch17.addConstraint(Sketcher.Constraint("Vertical", 2))
sketch17.addConstraint(Sketcher.Constraint("Horizontal", 3))
sketch17.addConstraint(Sketcher.Constraint("DistanceY", 0, 2, 0, 1, 64.896511))
sketch17.addConstraint(Sketcher.Constraint("DistanceX", 1, 2, 1, 1, 101.568694))
sketch17.addConstraint(Sketcher.Constraint("DistanceX", 1, 2, -1, 1, 45.96416))
sketch17.addConstraint(Sketcher.Constraint("DistanceY", 0, 2, -1, 1, 26.550304))
pocket12 = doc.addObject("PartDesign::Pocket", "Pocket011")
body.addObject(pocket12)
pocket12.Profile = sketch17
pocket12.Length = 80

doc.recompute()
